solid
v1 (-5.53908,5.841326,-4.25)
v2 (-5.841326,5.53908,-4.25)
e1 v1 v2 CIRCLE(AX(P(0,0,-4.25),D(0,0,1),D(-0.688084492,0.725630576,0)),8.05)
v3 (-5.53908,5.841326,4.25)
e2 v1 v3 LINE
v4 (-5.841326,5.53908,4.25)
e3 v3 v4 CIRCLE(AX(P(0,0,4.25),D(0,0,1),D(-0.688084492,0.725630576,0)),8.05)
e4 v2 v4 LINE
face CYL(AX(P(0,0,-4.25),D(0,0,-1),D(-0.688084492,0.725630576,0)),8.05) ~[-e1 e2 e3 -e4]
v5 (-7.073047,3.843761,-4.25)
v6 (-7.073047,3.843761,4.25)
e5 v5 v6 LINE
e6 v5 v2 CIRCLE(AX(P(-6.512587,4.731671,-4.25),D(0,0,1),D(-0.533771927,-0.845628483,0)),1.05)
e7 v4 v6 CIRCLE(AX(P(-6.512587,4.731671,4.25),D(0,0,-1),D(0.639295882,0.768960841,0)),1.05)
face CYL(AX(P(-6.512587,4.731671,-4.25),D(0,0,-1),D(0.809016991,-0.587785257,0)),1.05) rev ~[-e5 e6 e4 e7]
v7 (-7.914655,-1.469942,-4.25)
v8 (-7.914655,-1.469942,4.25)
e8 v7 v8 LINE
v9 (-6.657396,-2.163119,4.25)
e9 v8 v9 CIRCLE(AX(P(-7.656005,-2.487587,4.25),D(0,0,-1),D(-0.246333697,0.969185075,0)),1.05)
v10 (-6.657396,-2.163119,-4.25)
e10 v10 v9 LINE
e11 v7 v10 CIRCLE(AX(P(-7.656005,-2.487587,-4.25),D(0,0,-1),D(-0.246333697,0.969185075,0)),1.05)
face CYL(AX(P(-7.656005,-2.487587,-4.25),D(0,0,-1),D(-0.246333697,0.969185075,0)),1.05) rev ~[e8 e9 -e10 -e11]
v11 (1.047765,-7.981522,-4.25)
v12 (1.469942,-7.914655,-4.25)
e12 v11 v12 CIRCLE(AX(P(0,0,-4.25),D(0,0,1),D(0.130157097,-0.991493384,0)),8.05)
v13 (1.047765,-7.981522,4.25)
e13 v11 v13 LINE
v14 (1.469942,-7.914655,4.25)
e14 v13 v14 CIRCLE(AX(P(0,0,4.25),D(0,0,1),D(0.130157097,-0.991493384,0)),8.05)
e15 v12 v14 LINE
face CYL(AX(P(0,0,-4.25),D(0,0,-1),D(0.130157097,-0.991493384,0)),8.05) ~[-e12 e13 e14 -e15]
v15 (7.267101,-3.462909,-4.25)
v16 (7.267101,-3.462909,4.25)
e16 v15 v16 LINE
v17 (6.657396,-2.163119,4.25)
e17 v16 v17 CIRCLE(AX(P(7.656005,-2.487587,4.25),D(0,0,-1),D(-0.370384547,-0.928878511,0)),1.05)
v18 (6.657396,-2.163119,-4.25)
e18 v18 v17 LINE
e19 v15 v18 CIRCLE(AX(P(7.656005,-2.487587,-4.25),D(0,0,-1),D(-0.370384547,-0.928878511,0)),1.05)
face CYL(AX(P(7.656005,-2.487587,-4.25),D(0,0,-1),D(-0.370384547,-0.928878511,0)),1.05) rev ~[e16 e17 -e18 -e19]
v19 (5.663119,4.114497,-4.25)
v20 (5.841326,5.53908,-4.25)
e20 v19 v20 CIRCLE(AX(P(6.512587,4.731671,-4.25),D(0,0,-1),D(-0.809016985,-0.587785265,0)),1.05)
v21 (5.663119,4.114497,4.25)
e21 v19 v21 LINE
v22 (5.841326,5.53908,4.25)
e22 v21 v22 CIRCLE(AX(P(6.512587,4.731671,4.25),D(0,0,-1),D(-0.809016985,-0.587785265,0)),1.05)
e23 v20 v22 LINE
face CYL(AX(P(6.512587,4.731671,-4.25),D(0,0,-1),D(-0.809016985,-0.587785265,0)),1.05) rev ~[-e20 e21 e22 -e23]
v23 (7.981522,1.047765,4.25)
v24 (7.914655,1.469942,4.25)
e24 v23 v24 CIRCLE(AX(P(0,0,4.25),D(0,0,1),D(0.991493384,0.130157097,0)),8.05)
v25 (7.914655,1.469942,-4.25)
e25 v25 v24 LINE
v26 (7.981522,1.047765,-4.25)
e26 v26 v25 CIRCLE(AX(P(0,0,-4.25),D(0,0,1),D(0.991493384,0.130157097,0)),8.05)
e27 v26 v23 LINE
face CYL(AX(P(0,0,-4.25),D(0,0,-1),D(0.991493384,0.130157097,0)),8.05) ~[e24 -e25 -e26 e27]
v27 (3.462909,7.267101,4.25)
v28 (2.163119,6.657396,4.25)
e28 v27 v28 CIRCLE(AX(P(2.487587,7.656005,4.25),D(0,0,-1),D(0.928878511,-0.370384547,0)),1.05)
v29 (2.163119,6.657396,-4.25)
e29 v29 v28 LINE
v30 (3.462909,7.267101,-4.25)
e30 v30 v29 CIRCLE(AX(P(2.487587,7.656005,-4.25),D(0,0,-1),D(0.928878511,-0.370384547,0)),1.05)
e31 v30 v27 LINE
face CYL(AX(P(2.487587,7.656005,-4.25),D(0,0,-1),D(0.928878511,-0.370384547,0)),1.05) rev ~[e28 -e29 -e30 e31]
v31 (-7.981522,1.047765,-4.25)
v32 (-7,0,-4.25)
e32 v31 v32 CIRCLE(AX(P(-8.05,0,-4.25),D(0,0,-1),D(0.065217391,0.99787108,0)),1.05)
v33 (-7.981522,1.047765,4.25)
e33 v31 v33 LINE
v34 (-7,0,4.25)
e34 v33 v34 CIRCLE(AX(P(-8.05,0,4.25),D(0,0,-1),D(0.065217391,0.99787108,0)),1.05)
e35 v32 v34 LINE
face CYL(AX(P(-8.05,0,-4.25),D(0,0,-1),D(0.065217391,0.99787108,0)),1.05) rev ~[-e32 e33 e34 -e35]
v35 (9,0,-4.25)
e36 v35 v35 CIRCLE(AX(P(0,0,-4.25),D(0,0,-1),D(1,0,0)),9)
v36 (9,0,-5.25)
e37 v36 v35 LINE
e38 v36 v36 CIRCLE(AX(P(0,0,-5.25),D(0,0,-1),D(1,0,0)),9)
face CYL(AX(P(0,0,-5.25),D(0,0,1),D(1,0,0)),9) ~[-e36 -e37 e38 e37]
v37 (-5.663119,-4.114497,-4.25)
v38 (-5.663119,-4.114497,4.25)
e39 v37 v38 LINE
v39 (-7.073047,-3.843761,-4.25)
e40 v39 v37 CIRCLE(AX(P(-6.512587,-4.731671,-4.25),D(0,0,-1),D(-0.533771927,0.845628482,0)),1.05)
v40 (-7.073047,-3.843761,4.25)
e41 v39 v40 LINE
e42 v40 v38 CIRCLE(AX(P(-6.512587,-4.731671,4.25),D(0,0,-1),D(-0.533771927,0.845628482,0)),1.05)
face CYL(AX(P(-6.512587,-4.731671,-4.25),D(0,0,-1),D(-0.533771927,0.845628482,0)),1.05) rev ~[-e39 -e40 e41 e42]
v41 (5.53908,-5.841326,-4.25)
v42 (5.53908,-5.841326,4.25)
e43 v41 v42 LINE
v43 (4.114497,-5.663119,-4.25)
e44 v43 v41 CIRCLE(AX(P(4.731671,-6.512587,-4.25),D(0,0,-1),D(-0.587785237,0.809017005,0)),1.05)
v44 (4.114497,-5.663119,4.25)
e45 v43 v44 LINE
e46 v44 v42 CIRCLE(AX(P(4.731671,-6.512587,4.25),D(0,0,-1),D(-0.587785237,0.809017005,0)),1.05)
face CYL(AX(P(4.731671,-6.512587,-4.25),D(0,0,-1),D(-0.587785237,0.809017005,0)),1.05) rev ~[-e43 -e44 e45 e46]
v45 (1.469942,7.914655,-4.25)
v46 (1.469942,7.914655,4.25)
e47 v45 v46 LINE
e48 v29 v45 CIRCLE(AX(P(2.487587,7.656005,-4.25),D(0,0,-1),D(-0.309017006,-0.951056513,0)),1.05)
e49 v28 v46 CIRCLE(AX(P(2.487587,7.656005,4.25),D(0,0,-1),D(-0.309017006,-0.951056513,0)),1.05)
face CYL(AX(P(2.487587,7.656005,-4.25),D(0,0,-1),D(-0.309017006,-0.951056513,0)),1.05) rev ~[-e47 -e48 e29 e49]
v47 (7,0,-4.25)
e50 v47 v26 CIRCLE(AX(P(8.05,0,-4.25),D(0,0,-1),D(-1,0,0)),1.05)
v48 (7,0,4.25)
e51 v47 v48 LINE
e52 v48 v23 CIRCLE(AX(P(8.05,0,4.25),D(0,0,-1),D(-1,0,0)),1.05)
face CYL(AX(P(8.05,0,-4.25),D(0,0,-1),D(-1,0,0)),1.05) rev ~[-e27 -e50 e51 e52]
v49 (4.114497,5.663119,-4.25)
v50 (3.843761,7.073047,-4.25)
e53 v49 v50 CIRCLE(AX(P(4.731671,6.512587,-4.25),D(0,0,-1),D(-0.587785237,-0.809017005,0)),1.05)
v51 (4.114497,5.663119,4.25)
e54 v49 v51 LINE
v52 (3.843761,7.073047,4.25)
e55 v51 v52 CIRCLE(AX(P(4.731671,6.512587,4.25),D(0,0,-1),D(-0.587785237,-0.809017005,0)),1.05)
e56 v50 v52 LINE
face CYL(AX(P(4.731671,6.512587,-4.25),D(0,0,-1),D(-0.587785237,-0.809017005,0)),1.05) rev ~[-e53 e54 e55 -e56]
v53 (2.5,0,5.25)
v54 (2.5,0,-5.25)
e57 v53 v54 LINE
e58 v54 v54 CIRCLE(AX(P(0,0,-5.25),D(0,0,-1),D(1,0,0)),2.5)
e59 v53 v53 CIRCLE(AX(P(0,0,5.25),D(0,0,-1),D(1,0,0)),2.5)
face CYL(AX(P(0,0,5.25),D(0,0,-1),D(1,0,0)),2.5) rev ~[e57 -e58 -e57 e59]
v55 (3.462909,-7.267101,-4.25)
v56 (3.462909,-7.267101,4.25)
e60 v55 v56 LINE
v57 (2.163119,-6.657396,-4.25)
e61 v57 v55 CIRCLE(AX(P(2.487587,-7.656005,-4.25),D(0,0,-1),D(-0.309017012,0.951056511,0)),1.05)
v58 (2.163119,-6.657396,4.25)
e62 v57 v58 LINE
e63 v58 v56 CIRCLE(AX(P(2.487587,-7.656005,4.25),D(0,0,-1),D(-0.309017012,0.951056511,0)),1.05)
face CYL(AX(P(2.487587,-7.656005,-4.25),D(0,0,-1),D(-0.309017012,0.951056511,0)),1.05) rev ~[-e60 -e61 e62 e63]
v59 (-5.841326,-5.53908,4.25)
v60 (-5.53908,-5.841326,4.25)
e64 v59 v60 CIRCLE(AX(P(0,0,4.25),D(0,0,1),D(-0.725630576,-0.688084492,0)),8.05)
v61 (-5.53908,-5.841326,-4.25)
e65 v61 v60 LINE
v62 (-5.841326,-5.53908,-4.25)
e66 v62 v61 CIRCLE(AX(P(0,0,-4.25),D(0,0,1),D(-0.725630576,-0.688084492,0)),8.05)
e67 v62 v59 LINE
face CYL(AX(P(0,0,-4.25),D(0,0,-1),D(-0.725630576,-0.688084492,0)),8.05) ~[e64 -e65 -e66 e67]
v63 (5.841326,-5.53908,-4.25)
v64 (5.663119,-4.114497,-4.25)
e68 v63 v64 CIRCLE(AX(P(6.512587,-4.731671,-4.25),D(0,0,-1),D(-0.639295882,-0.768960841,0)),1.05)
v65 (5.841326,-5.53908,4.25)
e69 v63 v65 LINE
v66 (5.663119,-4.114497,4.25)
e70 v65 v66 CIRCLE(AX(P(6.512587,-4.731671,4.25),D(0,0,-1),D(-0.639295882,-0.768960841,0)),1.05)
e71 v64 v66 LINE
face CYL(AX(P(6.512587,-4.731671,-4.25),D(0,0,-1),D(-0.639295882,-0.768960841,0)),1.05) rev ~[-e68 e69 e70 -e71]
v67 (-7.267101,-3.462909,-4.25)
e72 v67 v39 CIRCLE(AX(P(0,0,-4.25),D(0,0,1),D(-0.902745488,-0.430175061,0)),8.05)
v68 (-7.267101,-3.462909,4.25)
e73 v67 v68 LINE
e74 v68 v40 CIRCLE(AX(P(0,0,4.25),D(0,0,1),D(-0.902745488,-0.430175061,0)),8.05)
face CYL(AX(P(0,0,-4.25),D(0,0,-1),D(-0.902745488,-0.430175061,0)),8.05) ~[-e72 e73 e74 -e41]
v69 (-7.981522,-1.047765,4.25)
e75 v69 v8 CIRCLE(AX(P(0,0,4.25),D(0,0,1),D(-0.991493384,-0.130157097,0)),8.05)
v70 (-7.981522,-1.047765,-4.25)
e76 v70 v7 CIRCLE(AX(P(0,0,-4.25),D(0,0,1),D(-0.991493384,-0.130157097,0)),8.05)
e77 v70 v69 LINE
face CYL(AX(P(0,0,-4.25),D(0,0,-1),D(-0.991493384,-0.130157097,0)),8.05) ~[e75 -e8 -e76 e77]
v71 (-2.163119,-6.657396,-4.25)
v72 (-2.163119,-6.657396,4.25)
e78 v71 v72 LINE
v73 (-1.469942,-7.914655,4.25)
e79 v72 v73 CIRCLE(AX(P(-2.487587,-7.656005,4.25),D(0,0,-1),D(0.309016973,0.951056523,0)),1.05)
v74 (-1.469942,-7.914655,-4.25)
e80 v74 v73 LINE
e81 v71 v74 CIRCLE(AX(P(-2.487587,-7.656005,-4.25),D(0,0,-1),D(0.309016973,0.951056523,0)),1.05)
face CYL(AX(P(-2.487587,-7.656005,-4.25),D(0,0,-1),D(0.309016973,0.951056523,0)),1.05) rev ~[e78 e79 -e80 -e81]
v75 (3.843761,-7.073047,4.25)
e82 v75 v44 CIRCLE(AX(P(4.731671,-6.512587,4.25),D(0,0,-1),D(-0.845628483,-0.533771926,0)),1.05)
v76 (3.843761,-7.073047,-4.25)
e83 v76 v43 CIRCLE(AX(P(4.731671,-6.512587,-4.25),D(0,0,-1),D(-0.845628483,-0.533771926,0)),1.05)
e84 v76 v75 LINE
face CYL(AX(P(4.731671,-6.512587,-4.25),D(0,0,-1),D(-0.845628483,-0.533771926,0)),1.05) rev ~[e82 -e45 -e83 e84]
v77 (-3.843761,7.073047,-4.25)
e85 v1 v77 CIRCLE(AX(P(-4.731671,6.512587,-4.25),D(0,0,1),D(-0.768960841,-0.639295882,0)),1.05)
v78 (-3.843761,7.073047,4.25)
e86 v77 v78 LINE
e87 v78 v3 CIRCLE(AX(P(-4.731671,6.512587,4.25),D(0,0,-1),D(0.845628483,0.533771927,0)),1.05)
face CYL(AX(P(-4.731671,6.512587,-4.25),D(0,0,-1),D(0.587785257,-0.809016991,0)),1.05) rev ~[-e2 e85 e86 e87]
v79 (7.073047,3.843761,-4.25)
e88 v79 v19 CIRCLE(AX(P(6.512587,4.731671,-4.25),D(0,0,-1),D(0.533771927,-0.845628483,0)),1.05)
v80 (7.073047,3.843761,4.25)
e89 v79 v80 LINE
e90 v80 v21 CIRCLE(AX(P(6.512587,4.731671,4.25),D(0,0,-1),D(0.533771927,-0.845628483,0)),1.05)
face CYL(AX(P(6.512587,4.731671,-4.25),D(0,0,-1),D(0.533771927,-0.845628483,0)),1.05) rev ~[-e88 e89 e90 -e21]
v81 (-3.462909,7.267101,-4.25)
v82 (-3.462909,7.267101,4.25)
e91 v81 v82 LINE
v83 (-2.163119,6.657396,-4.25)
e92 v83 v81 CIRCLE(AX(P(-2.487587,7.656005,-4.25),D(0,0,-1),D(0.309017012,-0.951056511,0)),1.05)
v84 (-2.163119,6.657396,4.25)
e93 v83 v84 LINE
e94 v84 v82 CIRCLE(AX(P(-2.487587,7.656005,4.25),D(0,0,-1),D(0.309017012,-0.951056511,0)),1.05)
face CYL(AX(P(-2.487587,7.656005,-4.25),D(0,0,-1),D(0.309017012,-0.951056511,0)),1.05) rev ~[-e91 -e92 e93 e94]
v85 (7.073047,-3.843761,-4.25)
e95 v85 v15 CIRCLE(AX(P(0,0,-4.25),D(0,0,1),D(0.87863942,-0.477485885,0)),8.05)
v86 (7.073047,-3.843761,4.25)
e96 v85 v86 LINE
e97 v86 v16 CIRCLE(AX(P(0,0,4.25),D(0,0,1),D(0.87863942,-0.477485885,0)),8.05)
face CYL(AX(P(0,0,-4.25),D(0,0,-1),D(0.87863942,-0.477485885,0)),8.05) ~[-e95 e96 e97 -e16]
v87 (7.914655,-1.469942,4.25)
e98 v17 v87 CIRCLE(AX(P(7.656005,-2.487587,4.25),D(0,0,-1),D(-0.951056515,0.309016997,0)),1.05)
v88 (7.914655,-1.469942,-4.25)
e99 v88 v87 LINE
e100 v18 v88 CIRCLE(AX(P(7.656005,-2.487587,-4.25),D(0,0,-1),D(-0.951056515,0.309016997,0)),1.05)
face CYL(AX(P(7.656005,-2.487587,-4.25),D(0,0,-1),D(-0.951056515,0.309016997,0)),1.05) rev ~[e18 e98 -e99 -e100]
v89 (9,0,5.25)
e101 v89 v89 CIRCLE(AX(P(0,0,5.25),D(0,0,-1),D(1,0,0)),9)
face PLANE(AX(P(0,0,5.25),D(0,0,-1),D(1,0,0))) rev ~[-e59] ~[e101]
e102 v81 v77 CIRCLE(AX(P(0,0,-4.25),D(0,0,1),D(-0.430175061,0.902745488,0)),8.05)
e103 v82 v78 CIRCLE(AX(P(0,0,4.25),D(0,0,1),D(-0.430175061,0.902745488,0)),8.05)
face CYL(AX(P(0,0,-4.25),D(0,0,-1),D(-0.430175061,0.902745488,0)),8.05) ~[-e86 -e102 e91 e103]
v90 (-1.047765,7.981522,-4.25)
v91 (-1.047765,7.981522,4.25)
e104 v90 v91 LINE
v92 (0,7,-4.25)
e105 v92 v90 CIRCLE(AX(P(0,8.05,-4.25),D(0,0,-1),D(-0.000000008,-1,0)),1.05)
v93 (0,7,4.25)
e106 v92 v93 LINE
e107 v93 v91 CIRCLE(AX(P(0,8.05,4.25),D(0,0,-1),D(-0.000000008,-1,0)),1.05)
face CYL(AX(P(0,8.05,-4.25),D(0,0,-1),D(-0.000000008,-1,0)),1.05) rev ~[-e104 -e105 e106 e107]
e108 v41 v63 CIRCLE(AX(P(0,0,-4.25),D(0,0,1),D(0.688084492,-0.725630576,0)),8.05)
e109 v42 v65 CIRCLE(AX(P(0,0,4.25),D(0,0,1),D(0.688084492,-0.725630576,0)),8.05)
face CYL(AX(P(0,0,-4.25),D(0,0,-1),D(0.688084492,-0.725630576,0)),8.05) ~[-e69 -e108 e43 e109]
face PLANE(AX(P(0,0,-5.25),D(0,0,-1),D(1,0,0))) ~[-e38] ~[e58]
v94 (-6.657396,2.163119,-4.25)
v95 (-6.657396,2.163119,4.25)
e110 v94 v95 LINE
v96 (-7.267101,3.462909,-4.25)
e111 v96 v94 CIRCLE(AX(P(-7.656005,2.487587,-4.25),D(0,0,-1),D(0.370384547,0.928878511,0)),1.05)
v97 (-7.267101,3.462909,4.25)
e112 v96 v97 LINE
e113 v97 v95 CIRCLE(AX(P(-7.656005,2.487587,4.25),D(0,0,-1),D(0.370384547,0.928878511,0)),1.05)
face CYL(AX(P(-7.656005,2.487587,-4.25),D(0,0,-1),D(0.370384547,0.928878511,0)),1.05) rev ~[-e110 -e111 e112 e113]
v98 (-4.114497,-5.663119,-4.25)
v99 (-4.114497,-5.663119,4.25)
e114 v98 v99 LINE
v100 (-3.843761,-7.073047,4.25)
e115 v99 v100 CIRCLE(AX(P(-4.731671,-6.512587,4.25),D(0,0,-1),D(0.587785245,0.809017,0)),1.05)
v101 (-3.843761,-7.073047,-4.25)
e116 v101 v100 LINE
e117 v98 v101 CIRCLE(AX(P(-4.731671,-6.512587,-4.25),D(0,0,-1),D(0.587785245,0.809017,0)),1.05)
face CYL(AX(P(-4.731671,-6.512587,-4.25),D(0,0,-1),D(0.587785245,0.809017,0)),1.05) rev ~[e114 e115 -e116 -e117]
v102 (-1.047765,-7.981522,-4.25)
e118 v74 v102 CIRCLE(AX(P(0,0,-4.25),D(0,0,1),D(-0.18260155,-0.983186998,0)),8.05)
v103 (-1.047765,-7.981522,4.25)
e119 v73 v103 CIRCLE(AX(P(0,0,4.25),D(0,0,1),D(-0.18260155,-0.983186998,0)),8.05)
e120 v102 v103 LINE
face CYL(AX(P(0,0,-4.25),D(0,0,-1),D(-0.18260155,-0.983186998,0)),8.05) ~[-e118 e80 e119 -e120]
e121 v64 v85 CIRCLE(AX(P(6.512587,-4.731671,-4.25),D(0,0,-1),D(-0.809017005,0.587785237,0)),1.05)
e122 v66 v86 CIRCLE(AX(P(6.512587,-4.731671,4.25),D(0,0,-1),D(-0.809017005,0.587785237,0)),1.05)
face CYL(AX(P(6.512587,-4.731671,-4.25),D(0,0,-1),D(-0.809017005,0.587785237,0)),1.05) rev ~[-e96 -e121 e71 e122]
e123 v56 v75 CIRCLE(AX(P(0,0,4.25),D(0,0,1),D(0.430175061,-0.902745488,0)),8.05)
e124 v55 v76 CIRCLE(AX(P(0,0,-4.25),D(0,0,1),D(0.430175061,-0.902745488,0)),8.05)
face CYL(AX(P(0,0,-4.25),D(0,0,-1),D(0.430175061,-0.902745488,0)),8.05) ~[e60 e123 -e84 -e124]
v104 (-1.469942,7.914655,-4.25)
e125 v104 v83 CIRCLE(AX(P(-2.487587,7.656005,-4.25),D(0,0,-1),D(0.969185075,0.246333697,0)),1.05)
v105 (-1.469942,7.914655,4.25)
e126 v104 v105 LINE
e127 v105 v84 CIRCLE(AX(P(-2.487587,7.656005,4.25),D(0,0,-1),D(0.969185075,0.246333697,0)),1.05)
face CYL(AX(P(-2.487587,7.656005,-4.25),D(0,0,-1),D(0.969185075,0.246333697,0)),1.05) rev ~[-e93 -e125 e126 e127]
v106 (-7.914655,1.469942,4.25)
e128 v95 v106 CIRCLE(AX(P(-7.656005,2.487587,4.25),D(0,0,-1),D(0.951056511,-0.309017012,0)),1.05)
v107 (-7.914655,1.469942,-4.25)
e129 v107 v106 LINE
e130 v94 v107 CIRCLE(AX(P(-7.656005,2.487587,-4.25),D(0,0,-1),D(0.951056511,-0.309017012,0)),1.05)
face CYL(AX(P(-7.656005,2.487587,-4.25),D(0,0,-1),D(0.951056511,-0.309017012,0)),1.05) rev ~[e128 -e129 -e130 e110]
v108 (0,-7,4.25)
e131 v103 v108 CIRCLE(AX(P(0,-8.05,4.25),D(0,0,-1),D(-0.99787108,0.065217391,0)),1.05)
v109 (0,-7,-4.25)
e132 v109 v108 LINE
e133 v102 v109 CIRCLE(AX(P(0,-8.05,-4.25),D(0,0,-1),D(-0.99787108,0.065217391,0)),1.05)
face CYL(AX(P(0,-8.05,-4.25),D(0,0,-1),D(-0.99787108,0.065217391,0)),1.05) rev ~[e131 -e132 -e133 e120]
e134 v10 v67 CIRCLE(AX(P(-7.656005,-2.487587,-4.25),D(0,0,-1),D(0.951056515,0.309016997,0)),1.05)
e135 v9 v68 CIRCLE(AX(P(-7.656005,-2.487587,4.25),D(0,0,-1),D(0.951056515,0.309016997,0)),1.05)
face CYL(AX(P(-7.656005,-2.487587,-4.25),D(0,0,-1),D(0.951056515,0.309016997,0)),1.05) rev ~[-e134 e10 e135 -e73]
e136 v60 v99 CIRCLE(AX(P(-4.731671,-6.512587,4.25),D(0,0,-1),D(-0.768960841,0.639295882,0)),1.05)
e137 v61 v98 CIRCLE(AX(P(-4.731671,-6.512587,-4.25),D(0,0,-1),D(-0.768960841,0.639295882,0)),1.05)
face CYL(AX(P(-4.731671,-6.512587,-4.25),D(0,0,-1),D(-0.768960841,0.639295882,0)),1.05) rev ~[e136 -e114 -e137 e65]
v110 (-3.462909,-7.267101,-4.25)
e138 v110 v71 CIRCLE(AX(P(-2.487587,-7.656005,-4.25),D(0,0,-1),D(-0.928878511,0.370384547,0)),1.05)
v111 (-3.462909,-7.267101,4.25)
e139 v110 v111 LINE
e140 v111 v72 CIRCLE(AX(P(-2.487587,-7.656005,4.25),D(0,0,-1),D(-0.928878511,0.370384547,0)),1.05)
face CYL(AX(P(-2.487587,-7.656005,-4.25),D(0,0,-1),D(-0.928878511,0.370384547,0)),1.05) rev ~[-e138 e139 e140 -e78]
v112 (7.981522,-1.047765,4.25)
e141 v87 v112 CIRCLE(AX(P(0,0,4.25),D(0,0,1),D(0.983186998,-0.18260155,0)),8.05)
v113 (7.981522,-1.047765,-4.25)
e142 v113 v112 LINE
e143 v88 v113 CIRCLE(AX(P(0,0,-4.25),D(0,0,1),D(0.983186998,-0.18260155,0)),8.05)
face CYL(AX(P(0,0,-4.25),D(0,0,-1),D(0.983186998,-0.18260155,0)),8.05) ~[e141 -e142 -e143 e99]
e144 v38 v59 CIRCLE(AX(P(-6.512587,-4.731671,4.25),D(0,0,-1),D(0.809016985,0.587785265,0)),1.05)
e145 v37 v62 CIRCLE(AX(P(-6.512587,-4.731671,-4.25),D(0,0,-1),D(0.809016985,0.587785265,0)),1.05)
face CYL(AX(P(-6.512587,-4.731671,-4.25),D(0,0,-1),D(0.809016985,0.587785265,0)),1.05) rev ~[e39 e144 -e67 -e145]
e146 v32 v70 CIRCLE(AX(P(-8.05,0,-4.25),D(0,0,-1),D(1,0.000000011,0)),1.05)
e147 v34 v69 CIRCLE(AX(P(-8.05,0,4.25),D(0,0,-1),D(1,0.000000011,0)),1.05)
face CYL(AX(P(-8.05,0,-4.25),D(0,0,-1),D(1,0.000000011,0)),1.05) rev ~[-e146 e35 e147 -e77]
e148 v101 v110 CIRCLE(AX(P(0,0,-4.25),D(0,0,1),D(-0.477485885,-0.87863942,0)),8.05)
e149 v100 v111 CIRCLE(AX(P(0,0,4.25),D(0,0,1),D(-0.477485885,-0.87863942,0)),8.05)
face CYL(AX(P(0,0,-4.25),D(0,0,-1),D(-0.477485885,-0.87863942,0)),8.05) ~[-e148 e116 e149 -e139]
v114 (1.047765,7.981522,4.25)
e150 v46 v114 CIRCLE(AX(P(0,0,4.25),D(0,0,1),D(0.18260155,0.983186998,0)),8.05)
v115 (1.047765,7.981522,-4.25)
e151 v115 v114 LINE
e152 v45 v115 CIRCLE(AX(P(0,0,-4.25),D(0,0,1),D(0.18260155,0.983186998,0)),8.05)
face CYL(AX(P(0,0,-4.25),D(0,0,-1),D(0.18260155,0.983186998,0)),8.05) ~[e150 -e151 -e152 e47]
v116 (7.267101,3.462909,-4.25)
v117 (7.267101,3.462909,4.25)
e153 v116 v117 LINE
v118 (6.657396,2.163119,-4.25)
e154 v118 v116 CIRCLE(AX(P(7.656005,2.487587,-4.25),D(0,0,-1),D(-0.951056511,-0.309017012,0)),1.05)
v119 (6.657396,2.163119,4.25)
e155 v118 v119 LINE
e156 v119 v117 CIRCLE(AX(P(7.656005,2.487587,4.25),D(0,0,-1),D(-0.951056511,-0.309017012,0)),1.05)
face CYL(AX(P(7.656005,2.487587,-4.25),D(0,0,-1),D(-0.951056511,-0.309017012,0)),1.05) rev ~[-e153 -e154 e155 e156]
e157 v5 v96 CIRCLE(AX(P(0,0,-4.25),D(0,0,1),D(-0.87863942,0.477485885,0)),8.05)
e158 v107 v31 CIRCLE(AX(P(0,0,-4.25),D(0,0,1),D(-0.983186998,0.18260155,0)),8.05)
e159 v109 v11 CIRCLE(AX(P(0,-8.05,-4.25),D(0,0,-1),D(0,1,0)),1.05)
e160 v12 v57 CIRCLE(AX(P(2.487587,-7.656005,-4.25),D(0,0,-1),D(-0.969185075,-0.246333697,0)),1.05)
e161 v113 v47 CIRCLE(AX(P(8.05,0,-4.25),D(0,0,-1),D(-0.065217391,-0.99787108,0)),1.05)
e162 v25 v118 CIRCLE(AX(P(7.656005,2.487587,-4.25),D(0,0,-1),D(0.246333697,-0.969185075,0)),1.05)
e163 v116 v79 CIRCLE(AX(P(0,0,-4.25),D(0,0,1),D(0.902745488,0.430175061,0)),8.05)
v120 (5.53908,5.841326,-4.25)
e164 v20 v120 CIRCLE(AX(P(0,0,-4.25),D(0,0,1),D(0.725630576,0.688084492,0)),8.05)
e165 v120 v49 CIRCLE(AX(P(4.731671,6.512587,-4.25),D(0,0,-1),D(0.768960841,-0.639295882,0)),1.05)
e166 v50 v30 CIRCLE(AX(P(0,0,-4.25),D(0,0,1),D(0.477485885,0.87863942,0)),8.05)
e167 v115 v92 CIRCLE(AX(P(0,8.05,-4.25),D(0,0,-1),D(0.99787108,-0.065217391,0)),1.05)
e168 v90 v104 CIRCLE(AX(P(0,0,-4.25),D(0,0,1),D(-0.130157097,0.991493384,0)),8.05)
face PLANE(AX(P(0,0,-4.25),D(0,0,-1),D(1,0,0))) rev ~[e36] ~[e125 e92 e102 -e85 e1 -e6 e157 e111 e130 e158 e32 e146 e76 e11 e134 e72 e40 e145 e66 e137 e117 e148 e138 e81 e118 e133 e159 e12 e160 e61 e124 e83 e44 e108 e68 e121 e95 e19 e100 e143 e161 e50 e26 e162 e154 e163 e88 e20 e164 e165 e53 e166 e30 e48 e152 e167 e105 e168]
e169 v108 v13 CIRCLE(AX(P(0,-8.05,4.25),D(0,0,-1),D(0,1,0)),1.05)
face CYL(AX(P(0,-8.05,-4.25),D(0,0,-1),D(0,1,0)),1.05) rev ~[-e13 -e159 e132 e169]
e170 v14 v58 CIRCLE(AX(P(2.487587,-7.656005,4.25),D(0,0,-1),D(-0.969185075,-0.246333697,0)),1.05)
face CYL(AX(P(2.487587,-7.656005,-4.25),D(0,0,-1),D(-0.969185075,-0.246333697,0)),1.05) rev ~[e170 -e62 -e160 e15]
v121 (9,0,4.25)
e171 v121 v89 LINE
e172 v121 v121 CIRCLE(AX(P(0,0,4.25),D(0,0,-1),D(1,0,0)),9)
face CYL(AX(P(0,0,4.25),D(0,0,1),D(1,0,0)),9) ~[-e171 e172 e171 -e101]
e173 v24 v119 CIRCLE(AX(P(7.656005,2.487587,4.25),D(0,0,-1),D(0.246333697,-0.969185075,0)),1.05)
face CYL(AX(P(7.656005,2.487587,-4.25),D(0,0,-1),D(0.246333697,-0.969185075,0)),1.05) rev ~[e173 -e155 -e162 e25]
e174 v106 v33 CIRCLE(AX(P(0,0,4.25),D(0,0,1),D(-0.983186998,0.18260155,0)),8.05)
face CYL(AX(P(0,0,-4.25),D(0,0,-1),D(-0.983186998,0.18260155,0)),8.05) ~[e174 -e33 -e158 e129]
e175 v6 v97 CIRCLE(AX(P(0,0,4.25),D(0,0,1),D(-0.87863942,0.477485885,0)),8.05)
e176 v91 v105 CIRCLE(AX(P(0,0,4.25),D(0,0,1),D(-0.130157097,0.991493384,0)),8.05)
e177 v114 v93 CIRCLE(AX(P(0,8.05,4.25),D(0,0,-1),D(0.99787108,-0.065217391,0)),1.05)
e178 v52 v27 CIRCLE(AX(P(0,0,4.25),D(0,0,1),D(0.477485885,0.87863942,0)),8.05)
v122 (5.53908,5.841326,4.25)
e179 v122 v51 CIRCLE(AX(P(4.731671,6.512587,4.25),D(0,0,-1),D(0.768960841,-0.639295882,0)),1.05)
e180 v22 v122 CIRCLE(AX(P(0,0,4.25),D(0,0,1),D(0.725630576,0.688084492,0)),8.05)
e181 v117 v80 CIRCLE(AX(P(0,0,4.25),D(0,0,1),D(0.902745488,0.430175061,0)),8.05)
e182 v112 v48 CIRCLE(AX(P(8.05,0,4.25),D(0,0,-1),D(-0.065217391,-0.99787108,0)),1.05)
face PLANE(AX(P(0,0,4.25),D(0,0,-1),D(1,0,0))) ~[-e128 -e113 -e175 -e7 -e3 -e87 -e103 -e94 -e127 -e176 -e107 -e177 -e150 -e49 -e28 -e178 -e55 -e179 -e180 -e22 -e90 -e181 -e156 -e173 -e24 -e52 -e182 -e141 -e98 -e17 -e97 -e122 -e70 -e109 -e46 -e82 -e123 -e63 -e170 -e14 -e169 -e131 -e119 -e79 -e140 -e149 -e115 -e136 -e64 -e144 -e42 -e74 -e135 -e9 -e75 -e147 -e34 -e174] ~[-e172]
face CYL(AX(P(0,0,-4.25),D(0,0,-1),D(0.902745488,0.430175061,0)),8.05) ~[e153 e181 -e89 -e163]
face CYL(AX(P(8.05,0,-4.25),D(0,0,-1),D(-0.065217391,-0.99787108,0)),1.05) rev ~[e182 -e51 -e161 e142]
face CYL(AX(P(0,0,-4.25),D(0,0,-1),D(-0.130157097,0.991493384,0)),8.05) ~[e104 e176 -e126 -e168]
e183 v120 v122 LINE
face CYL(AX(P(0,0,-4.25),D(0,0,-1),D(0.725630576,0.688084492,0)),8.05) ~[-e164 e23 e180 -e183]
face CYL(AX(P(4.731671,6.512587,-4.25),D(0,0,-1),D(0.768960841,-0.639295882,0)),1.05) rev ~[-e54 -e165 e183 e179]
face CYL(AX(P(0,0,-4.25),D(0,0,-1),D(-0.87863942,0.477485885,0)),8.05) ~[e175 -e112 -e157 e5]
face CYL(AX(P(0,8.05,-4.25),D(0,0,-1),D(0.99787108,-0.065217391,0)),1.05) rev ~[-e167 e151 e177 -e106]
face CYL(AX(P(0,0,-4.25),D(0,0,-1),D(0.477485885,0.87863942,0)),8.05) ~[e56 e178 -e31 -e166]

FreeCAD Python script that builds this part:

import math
import FreeCAD as App
import Part
import Sketcher
from FreeCAD import Vector
Q = App.Units.Quantity

doc = App.newDocument("Part")
body = doc.addObject("PartDesign::Body", "Body")

sketch1 = body.newObject("Sketcher::SketchObject", "Sketch")
sketch1.AttachmentSupport = (doc.getObject("XZ_Plane"), [""])
sketch1.MapMode = "FlatFace"
sketch1.addGeometry([
    Part.LineSegment(Vector(9, 5.25, 0), Vector(2.5, 5.25, 0)),
    Part.LineSegment(Vector(2.5, 5.25, 0), Vector(2.5, -5.25, 0)),
    Part.LineSegment(Vector(2.5, -5.25, 0), Vector(9, -5.25, 0)),
    Part.LineSegment(Vector(9, -5.25, 0), Vector(9, -4.25, 0)),
    Part.LineSegment(Vector(9, -4.25, 0), Vector(7, -4.25, 0)),
    Part.LineSegment(Vector(7, -4.25, 0), Vector(7, 4.25, 0)),
    Part.LineSegment(Vector(7, 4.25, 0), Vector(9, 4.25, 0)),
    Part.LineSegment(Vector(9, 4.25, 0), Vector(9, 5.25, 0)),
], False)
sketch1.addConstraint([
    Sketcher.Constraint("Coincident", 0, 2, 1, 1),
    Sketcher.Constraint("Coincident", 1, 2, 2, 1),
    Sketcher.Constraint("Coincident", 2, 2, 3, 1),
    Sketcher.Constraint("Coincident", 3, 2, 4, 1),
    Sketcher.Constraint("Coincident", 4, 2, 5, 1),
    Sketcher.Constraint("Coincident", 5, 2, 6, 1),
    Sketcher.Constraint("Coincident", 6, 2, 7, 1),
    Sketcher.Constraint("Coincident", 7, 2, 0, 1),
    Sketcher.Constraint("Horizontal", 0),
    Sketcher.Constraint("Vertical", 1),
    Sketcher.Constraint("Horizontal", 2),
    Sketcher.Constraint("Vertical", 3),
    Sketcher.Constraint("Horizontal", 4),
    Sketcher.Constraint("Vertical", 5),
    Sketcher.Constraint("Horizontal", 6),
    Sketcher.Constraint("Vertical", 7),
    Sketcher.Constraint("Symmetric", 3, 2, 6, 2, -1),
    Sketcher.Constraint("Equal", 3, 7),
    Sketcher.Constraint("DistanceX", 4, 2, 4, 1, Q("2 mm")),
    Sketcher.Constraint("DistanceY", 3, 1, 3, 2, Q("1 mm")),
    Sketcher.Constraint("DistanceX", 0, 2, 0, 1, Q("6.5 mm")),
    Sketcher.Constraint("DistanceY", 1, 2, 1, 1, Q("10.5 mm")),
    Sketcher.Constraint("DistanceX", -1, 1, 2, 2, Q("9 mm")),
])
revolution = body.newObject("PartDesign::Revolution", "Revolution")
revolution.Profile = sketch1
revolution.ReferenceAxis = (sketch1, ["V_Axis"])
revolution.Angle = 360

sketch2 = body.newObject("Sketcher::SketchObject", "Sketch001")
sketch2.AttachmentSupport = (doc.getObject("XY_Plane"), [""])
sketch2.MapMode = "FlatFace"
sketch2.AttachmentOffset = App.Placement(Vector(0, 0, -4.25), App.Rotation())
sketch2.addGeometry([
    Part.ArcOfCircle(Part.Circle(Vector(7.656005, -2.487587, 0), Vector(0, 0, 1), 1.05), math.radians(162), math.radians(248.260665)),
    Part.ArcOfCircle(Part.Circle(Vector(0, 0, 0), Vector(0, 0, 1), 7), math.radians(-36), math.radians(-18)),
    Part.ArcOfCircle(Part.Circle(Vector(6.512587, -4.731671, 0), Vector(0, 0, 1), 1.05), math.radians(57.739335), math.radians(144.000001)),
    Part.ArcOfCircle(Part.Circle(Vector(0, 0, 0), Vector(0, 0, 1), 8.05), math.radians(-28.52133), math.radians(-25.47867)),
    Part.ArcOfCircle(Part.Circle(Vector(8.05, 0, 0), Vector(0, 0, 1), 1.05), math.radians(180), math.radians(266.260665)),
    Part.ArcOfCircle(Part.Circle(Vector(0, 0, 0), Vector(0, 0, 1), 7), math.radians(-18), math.radians(0)),
    Part.ArcOfCircle(Part.Circle(Vector(7.656005, -2.487587, 0), Vector(0, 0, 1), 1.05), math.radians(75.739335), math.radians(162)),
    Part.ArcOfCircle(Part.Circle(Vector(0, 0, 0), Vector(0, 0, 1), 8.05), math.radians(-10.52133), math.radians(-7.47867)),
    Part.ArcOfCircle(Part.Circle(Vector(7.656005, 2.487587, 0), Vector(0, 0, 1), 1.05), math.radians(-161.999999), math.radians(-75.739335)),
    Part.ArcOfCircle(Part.Circle(Vector(0, 0, 0), Vector(0, 0, 1), 7), math.radians(0), math.radians(18)),
    Part.ArcOfCircle(Part.Circle(Vector(8.05, 0, 0), Vector(0, 0, 1), 1.05), math.radians(93.739335), math.radians(180)),
    Part.ArcOfCircle(Part.Circle(Vector(0, 0, 0), Vector(0, 0, 1), 8.05), math.radians(7.47867), math.radians(10.52133)),
    Part.ArcOfCircle(Part.Circle(Vector(6.512587, -4.731671, 0), Vector(0, 0, 1), 1.05), math.radians(144.000001), math.radians(230.260665)),
    Part.ArcOfCircle(Part.Circle(Vector(0, 0, 0), Vector(0, 0, 1), 7), math.radians(-54), math.radians(-36)),
    Part.ArcOfCircle(Part.Circle(Vector(4.731671, -6.512587, 0), Vector(0, 0, 1), 1.05), math.radians(39.739335), math.radians(125.999999)),
    Part.ArcOfCircle(Part.Circle(Vector(0, 0, 0), Vector(0, 0, 1), 8.05), math.radians(-46.52133), math.radians(-43.47867)),
    Part.ArcOfCircle(Part.Circle(Vector(4.731671, -6.512587, 0), Vector(0, 0, 1), 1.05), math.radians(125.999999), math.radians(212.260665)),
    Part.ArcOfCircle(Part.Circle(Vector(0, 0, 0), Vector(0, 0, 1), 7), math.radians(-72), math.radians(-54)),
    Part.ArcOfCircle(Part.Circle(Vector(2.487587, -7.656005, 0), Vector(0, 0, 1), 1.05), math.radians(21.739335), math.radians(108.000001)),
    Part.ArcOfCircle(Part.Circle(Vector(0, 0, 0), Vector(0, 0, 1), 8.05), math.radians(-64.52133), math.radians(-61.47867)),
    Part.ArcOfCircle(Part.Circle(Vector(2.487587, -7.656005, 0), Vector(0, 0, 1), 1.05), math.radians(108.000001), math.radians(194.260665)),
    Part.ArcOfCircle(Part.Circle(Vector(0, 0, 0), Vector(0, 0, 1), 7), math.radians(-90), math.radians(-72)),
    Part.ArcOfCircle(Part.Circle(Vector(0, -8.05, 0), Vector(0, 0, 1), 1.05), math.radians(3.739335), math.radians(90)),
    Part.ArcOfCircle(Part.Circle(Vector(0, 0, 0), Vector(0, 0, 1), 8.05), math.radians(-82.52133), math.radians(-79.47867)),
    Part.ArcOfCircle(Part.Circle(Vector(0, 0, 0), Vector(0, 0, 1), 7), math.radians(-108), math.radians(-90)),
    Part.ArcOfCircle(Part.Circle(Vector(-2.487587, -7.656005, 0), Vector(0, 0, 1), 1.05), math.radians(-14.260665), math.radians(72.000001)),
    Part.ArcOfCircle(Part.Circle(Vector(0, 0, 0), Vector(0, 0, 1), 8.05), math.radians(-100.52133), math.radians(-97.47867)),
    Part.ArcOfCircle(Part.Circle(Vector(0, -8.05, 0), Vector(0, 0, 1), 1.05), math.radians(90), math.radians(176.260665)),
    Part.ArcOfCircle(Part.Circle(Vector(0, 0, 0), Vector(0, 0, 1), 7), math.radians(-126), math.radians(-108)),
    Part.ArcOfCircle(Part.Circle(Vector(-4.731671, -6.512587, 0), Vector(0, 0, 1), 1.05), math.radians(-32.260665), math.radians(54.000001)),
    Part.ArcOfCircle(Part.Circle(Vector(0, 0, 0), Vector(0, 0, 1), 8.05), math.radians(-118.52133), math.radians(-115.47867)),
    Part.ArcOfCircle(Part.Circle(Vector(-2.487587, -7.656005, 0), Vector(0, 0, 1), 1.05), math.radians(72.000001), math.radians(158.260665)),
    Part.ArcOfCircle(Part.Circle(Vector(0, 0, 0), Vector(0, 0, 1), 7), math.radians(-144), math.radians(-126)),
    Part.ArcOfCircle(Part.Circle(Vector(-6.512587, -4.731671, 0), Vector(0, 0, 1), 1.05), math.radians(-50.260665), math.radians(36.000001)),
    Part.ArcOfCircle(Part.Circle(Vector(0, 0, 0), Vector(0, 0, 1), 8.05), math.radians(-136.52133), math.radians(-133.47867)),
    Part.ArcOfCircle(Part.Circle(Vector(-4.731671, -6.512587, 0), Vector(0, 0, 1), 1.05), math.radians(54.000001), math.radians(140.260665)),
    Part.ArcOfCircle(Part.Circle(Vector(0, 0, 0), Vector(0, 0, 1), 7), math.radians(-162), math.radians(-144)),
    Part.ArcOfCircle(Part.Circle(Vector(-7.656005, -2.487587, 0), Vector(0, 0, 1), 1.05), math.radians(-68.260665), math.radians(18)),
    Part.ArcOfCircle(Part.Circle(Vector(0, 0, 0), Vector(0, 0, 1), 8.05), math.radians(-154.52133), math.radians(-151.47867)),
    Part.ArcOfCircle(Part.Circle(Vector(-6.512587, -4.731671, 0), Vector(0, 0, 1), 1.05), math.radians(36.000001), math.radians(122.260665)),
    Part.ArcOfCircle(Part.Circle(Vector(0, 0, 0), Vector(0, 0, 1), 7), math.radians(180), math.radians(198)),
    Part.ArcOfCircle(Part.Circle(Vector(-8.05, 0, 0), Vector(0, 0, 1), 1.05), math.radians(-86.260665), math.radians(0.000001)),
    Part.ArcOfCircle(Part.Circle(Vector(0, 0, 0), Vector(0, 0, 1), 8.05), math.radians(-172.52133), math.radians(-169.47867)),
    Part.ArcOfCircle(Part.Circle(Vector(-7.656005, -2.487587, 0), Vector(0, 0, 1), 1.05), math.radians(18), math.radians(104.260665)),
    Part.ArcOfCircle(Part.Circle(Vector(0, 0, 0), Vector(0, 0, 1), 7), math.radians(162), math.radians(180)),
    Part.ArcOfCircle(Part.Circle(Vector(-7.656005, 2.487587, 0), Vector(0, 0, 1), 1.05), math.radians(-104.260665), math.radians(-18.000001)),
    Part.ArcOfCircle(Part.Circle(Vector(0, 0, 0), Vector(0, 0, 1), 8.05), math.radians(169.47867), math.radians(172.52133)),
    Part.ArcOfCircle(Part.Circle(Vector(-8.05, 0, 0), Vector(0, 0, 1), 1.05), math.radians(0.000001), math.radians(86.260665)),
    Part.ArcOfCircle(Part.Circle(Vector(0, 0, 0), Vector(0, 0, 1), 7), math.radians(144), math.radians(162)),
    Part.ArcOfCircle(Part.Circle(Vector(-6.512587, 4.731671, 0), Vector(0, 0, 1), 1.05), math.radians(-122.260665), math.radians(-36)),
    Part.ArcOfCircle(Part.Circle(Vector(0, 0, 0), Vector(0, 0, 1), 8.05), math.radians(151.47867), math.radians(154.52133)),
    Part.ArcOfCircle(Part.Circle(Vector(-7.656005, 2.487587, 0), Vector(0, 0, 1), 1.05), math.radians(-18.000001), math.radians(68.260665)),
    Part.ArcOfCircle(Part.Circle(Vector(0, 0, 0), Vector(0, 0, 1), 7), math.radians(126), math.radians(144)),
    Part.ArcOfCircle(Part.Circle(Vector(-4.731671, 6.512587, 0), Vector(0, 0, 1), 1.05), math.radians(-140.260665), math.radians(-54)),
    Part.ArcOfCircle(Part.Circle(Vector(0, 0, 0), Vector(0, 0, 1), 8.05), math.radians(133.47867), math.radians(136.52133)),
    Part.ArcOfCircle(Part.Circle(Vector(-6.512587, 4.731671, 0), Vector(0, 0, 1), 1.05), math.radians(-36), math.radians(50.260665)),
    Part.ArcOfCircle(Part.Circle(Vector(0, 0, 0), Vector(0, 0, 1), 7), math.radians(108), math.radians(126)),
    Part.ArcOfCircle(Part.Circle(Vector(-2.487587, 7.656005, 0), Vector(0, 0, 1), 1.05), math.radians(-158.260665), math.radians(-71.999999)),
    Part.ArcOfCircle(Part.Circle(Vector(0, 0, 0), Vector(0, 0, 1), 8.05), math.radians(115.47867), math.radians(118.52133)),
    Part.ArcOfCircle(Part.Circle(Vector(-4.731671, 6.512587, 0), Vector(0, 0, 1), 1.05), math.radians(-54), math.radians(32.260665)),
    Part.ArcOfCircle(Part.Circle(Vector(0, 8.05, 0), Vector(0, 0, 1), 1.05), math.radians(-176.260665), math.radians(-90)),
    Part.ArcOfCircle(Part.Circle(Vector(0, 0, 0), Vector(0, 0, 1), 8.05), math.radians(97.47867), math.radians(100.52133)),
    Part.ArcOfCircle(Part.Circle(Vector(-2.487587, 7.656005, 0), Vector(0, 0, 1), 1.05), math.radians(-71.999999), math.radians(14.260665)),
    Part.ArcOfCircle(Part.Circle(Vector(0, 0, 0), Vector(0, 0, 1), 7), math.radians(90), math.radians(108)),
    Part.ArcOfCircle(Part.Circle(Vector(0, 8.05, 0), Vector(0, 0, 1), 1.05), math.radians(-90), math.radians(-3.739335)),
    Part.ArcOfCircle(Part.Circle(Vector(0, 0, 0), Vector(0, 0, 1), 7), math.radians(72), math.radians(90)),
    Part.ArcOfCircle(Part.Circle(Vector(2.487587, 7.656005, 0), Vector(0, 0, 1), 1.05), math.radians(165.739335), math.radians(251.999999)),
    Part.ArcOfCircle(Part.Circle(Vector(0, 0, 0), Vector(0, 0, 1), 8.05), math.radians(79.47867), math.radians(82.52133)),
    Part.ArcOfCircle(Part.Circle(Vector(2.487587, 7.656005, 0), Vector(0, 0, 1), 1.05), math.radians(-108.000001), math.radians(-21.739335)),
    Part.ArcOfCircle(Part.Circle(Vector(0, 0, 0), Vector(0, 0, 1), 7), math.radians(54), math.radians(72)),
    Part.ArcOfCircle(Part.Circle(Vector(4.731671, 6.512587, 0), Vector(0, 0, 1), 1.05), math.radians(147.739335), math.radians(234.000001)),
    Part.ArcOfCircle(Part.Circle(Vector(0, 0, 0), Vector(0, 0, 1), 8.05), math.radians(61.47867), math.radians(64.52133)),
    Part.ArcOfCircle(Part.Circle(Vector(4.731671, 6.512587, 0), Vector(0, 0, 1), 1.05), math.radians(-125.999999), math.radians(-39.739335)),
    Part.ArcOfCircle(Part.Circle(Vector(0, 0, 0), Vector(0, 0, 1), 7), math.radians(36), math.radians(54)),
    Part.ArcOfCircle(Part.Circle(Vector(6.512587, 4.731671, 0), Vector(0, 0, 1), 1.05), math.radians(129.739335), math.radians(216.000001)),
    Part.ArcOfCircle(Part.Circle(Vector(0, 0, 0), Vector(0, 0, 1), 8.05), math.radians(43.47867), math.radians(46.52133)),
    Part.ArcOfCircle(Part.Circle(Vector(6.512587, 4.731671, 0), Vector(0, 0, 1), 1.05), math.radians(-143.999999), math.radians(-57.739335)),
    Part.ArcOfCircle(Part.Circle(Vector(0, 0, 0), Vector(0, 0, 1), 7), math.radians(18), math.radians(36)),
    Part.ArcOfCircle(Part.Circle(Vector(7.656005, 2.487587, 0), Vector(0, 0, 1), 1.05), math.radians(111.739335), math.radians(198.000001)),
    Part.ArcOfCircle(Part.Circle(Vector(0, 0, 0), Vector(0, 0, 1), 8.05), math.radians(25.47867), math.radians(28.52133)),
], False)
sketch2.addConstraint([
    Sketcher.Constraint("Tangent", 0, 1, 1, 2),
    Sketcher.Constraint("Tangent", 1, 1, 2, 2),
    Sketcher.Constraint("Coincident", 2, 1, 3, 1),
    Sketcher.Constraint("Coincident", 3, 2, 0, 2),
    Sketcher.Constraint("Tangent", 4, 1, 5, 2),
    Sketcher.Constraint("Tangent", 5, 1, 6, 2),
    Sketcher.Constraint("Coincident", 6, 1, 7, 1),
    Sketcher.Constraint("Coincident", 7, 2, 4, 2),
    Sketcher.Constraint("Tangent", 8, 1, 9, 2),
    Sketcher.Constraint("Tangent", 9, 1, 10, 2),
    Sketcher.Constraint("Coincident", 10, 1, 11, 1),
    Sketcher.Constraint("Coincident", 11, 2, 8, 2),
    Sketcher.Constraint("Tangent", 12, 1, 13, 2),
    Sketcher.Constraint("Tangent", 13, 1, 14, 2),
    Sketcher.Constraint("Coincident", 14, 1, 15, 1),
    Sketcher.Constraint("Coincident", 15, 2, 12, 2),
    Sketcher.Constraint("Tangent", 16, 1, 17, 2),
    Sketcher.Constraint("Tangent", 17, 1, 18, 2),
    Sketcher.Constraint("Coincident", 18, 1, 19, 1),
    Sketcher.Constraint("Coincident", 19, 2, 16, 2),
    Sketcher.Constraint("Tangent", 20, 1, 21, 2),
    Sketcher.Constraint("Tangent", 21, 1, 22, 2),
    Sketcher.Constraint("Coincident", 22, 1, 23, 1),
    Sketcher.Constraint("Coincident", 23, 2, 20, 2),
    Sketcher.Constraint("Tangent", 24, 1, 25, 2),
    Sketcher.Constraint("Coincident", 25, 1, 26, 1),
    Sketcher.Constraint("Coincident", 26, 2, 27, 2),
    Sketcher.Constraint("Tangent", 27, 1, 24, 2),
    Sketcher.Constraint("Tangent", 28, 1, 29, 2),
    Sketcher.Constraint("Coincident", 29, 1, 30, 1),
    Sketcher.Constraint("Coincident", 30, 2, 31, 2),
    Sketcher.Constraint("Tangent", 31, 1, 28, 2),
    Sketcher.Constraint("Tangent", 32, 1, 33, 2),
    Sketcher.Constraint("Coincident", 33, 1, 34, 1),
    Sketcher.Constraint("Coincident", 34, 2, 35, 2),
    Sketcher.Constraint("Tangent", 35, 1, 32, 2),
    Sketcher.Constraint("Tangent", 36, 1, 37, 2),
    Sketcher.Constraint("Coincident", 37, 1, 38, 1),
    Sketcher.Constraint("Coincident", 38, 2, 39, 2),
    Sketcher.Constraint("Tangent", 39, 1, 36, 2),
    Sketcher.Constraint("Tangent", 40, 1, 41, 2),
    Sketcher.Constraint("Coincident", 41, 1, 42, 1),
    Sketcher.Constraint("Coincident", 42, 2, 43, 2),
    Sketcher.Constraint("Tangent", 43, 1, 40, 2),
    Sketcher.Constraint("Tangent", 44, 1, 45, 2),
    Sketcher.Constraint("Coincident", 45, 1, 46, 1),
    Sketcher.Constraint("Coincident", 46, 2, 47, 2),
    Sketcher.Constraint("Tangent", 47, 1, 44, 2),
    Sketcher.Constraint("Tangent", 48, 1, 49, 2),
    Sketcher.Constraint("Coincident", 49, 1, 50, 1),
    Sketcher.Constraint("Coincident", 50, 2, 51, 2),
    Sketcher.Constraint("Tangent", 51, 1, 48, 2),
    Sketcher.Constraint("Tangent", 52, 1, 53, 2),
    Sketcher.Constraint("Coincident", 53, 1, 54, 1),
    Sketcher.Constraint("Coincident", 54, 2, 55, 2),
    Sketcher.Constraint("Tangent", 55, 1, 52, 2),
    Sketcher.Constraint("Tangent", 56, 1, 57, 2),
    Sketcher.Constraint("Coincident", 57, 1, 58, 1),
    Sketcher.Constraint("Coincident", 58, 2, 59, 2),
    Sketcher.Constraint("Tangent", 59, 1, 56, 2),
    Sketcher.Constraint("Coincident", 60, 1, 61, 1),
    Sketcher.Constraint("Coincident", 61, 2, 62, 2),
    Sketcher.Constraint("Tangent", 62, 1, 63, 2),
    Sketcher.Constraint("Tangent", 63, 1, 60, 2),
    Sketcher.Constraint("Tangent", 64, 1, 65, 2),
    Sketcher.Constraint("Tangent", 65, 1, 66, 2),
    Sketcher.Constraint("Coincident", 66, 1, 67, 1),
    Sketcher.Constraint("Coincident", 67, 2, 64, 2),
    Sketcher.Constraint("Tangent", 68, 1, 69, 2),
    Sketcher.Constraint("Tangent", 69, 1, 70, 2),
    Sketcher.Constraint("Coincident", 70, 1, 71, 1),
    Sketcher.Constraint("Coincident", 71, 2, 68, 2),
    Sketcher.Constraint("Tangent", 72, 1, 73, 2),
    Sketcher.Constraint("Tangent", 73, 1, 74, 2),
    Sketcher.Constraint("Coincident", 74, 1, 75, 1),
    Sketcher.Constraint("Coincident", 75, 2, 72, 2),
    Sketcher.Constraint("Tangent", 76, 1, 77, 2),
    Sketcher.Constraint("Tangent", 77, 1, 78, 2),
    Sketcher.Constraint("Coincident", 78, 1, 79, 1),
    Sketcher.Constraint("Coincident", 79, 2, 76, 2),
    Sketcher.Constraint("Coincident", 1, 3, -1, 1),
    Sketcher.Constraint("Coincident", 3, 3, -1, 1),
    Sketcher.Constraint("Coincident", 5, 3, -1, 1),
    Sketcher.Constraint("Coincident", 7, 3, -1, 1),
    Sketcher.Constraint("Coincident", 9, 3, -1, 1),
    Sketcher.Constraint("Coincident", 11, 3, -1, 1),
    Sketcher.Constraint("Coincident", 13, 3, -1, 1),
    Sketcher.Constraint("Coincident", 15, 3, -1, 1),
    Sketcher.Constraint("Coincident", 17, 3, -1, 1),
    Sketcher.Constraint("Coincident", 19, 3, -1, 1),
    Sketcher.Constraint("Coincident", 21, 3, -1, 1),
    Sketcher.Constraint("Coincident", 23, 3, -1, 1),
    Sketcher.Constraint("Coincident", 24, 3, -1, 1),
    Sketcher.Constraint("Coincident", 26, 3, -1, 1),
    Sketcher.Constraint("Coincident", 28, 3, -1, 1),
    Sketcher.Constraint("Coincident", 30, 3, -1, 1),
    Sketcher.Constraint("Coincident", 32, 3, -1, 1),
    Sketcher.Constraint("Coincident", 34, 3, -1, 1),
    Sketcher.Constraint("Coincident", 36, 3, -1, 1),
    Sketcher.Constraint("Coincident", 38, 3, -1, 1),
    Sketcher.Constraint("Coincident", 40, 3, -1, 1),
    Sketcher.Constraint("Coincident", 42, 3, -1, 1),
    Sketcher.Constraint("Coincident", 44, 3, -1, 1),
    Sketcher.Constraint("Coincident", 46, 3, -1, 1),
    Sketcher.Constraint("Coincident", 48, 3, -1, 1),
    Sketcher.Constraint("Coincident", 50, 3, -1, 1),
    Sketcher.Constraint("Coincident", 52, 3, -1, 1),
    Sketcher.Constraint("Coincident", 54, 3, -1, 1),
    Sketcher.Constraint("Coincident", 56, 3, -1, 1),
    Sketcher.Constraint("Coincident", 58, 3, -1, 1),
    Sketcher.Constraint("Coincident", 61, 3, -1, 1),
    Sketcher.Constraint("Coincident", 63, 3, -1, 1),
    Sketcher.Constraint("Coincident", 65, 3, -1, 1),
    Sketcher.Constraint("Coincident", 67, 3, -1, 1),
    Sketcher.Constraint("Coincident", 69, 3, -1, 1),
    Sketcher.Constraint("Coincident", 71, 3, -1, 1),
    Sketcher.Constraint("Coincident", 73, 3, -1, 1),
    Sketcher.Constraint("Coincident", 75, 3, -1, 1),
    Sketcher.Constraint("Coincident", 77, 3, -1, 1),
    Sketcher.Constraint("Coincident", 79, 3, -1, 1),
    Sketcher.Constraint("Coincident", 6, 3, 0, 3),
    Sketcher.Constraint("Coincident", 10, 3, 4, 3),
    Sketcher.Constraint("Coincident", 12, 3, 2, 3),
    Sketcher.Constraint("Coincident", 16, 3, 14, 3),
    Sketcher.Constraint("Coincident", 20, 3, 18, 3),
    Sketcher.Constraint("Coincident", 27, 3, 22, 3),
    Sketcher.Constraint("Coincident", 31, 3, 25, 3),
    Sketcher.Constraint("Coincident", 35, 3, 29, 3),
    Sketcher.Constraint("Coincident", 39, 3, 33, 3),
    Sketcher.Constraint("Coincident", 43, 3, 37, 3),
    Sketcher.Constraint("Coincident", 47, 3, 41, 3),
    Sketcher.Constraint("Coincident", 51, 3, 45, 3),
    Sketcher.Constraint("Coincident", 55, 3, 49, 3),
    Sketcher.Constraint("Coincident", 59, 3, 53, 3),
    Sketcher.Constraint("Coincident", 62, 3, 57, 3),
    Sketcher.Constraint("Coincident", 64, 3, 60, 3),
    Sketcher.Constraint("Coincident", 68, 3, 66, 3),
    Sketcher.Constraint("Coincident", 72, 3, 70, 3),
    Sketcher.Constraint("Coincident", 76, 3, 74, 3),
    Sketcher.Constraint("Coincident", 78, 3, 8, 3),
    Sketcher.Constraint("Equal", 0, 2),
    Sketcher.Constraint("Equal", 2, 4),
    Sketcher.Constraint("Equal", 1, 5),
    Sketcher.Constraint("Equal", 3, 7),
    Sketcher.Constraint("Equal", 6, 8),
    Sketcher.Constraint("Equal", 5, 9),
    Sketcher.Constraint("Equal", 7, 11),
    Sketcher.Constraint("Equal", 10, 12),
    Sketcher.Constraint("Equal", 12, 14),
    Sketcher.Constraint("Equal", 11, 15),
    Sketcher.Constraint("Equal", 14, 16),
    Sketcher.Constraint("Equal", 16, 18),
    Sketcher.Constraint("Equal", 15, 19),
    Sketcher.Constraint("Equal", 18, 20),
    Sketcher.Constraint("Equal", 20, 22),
    Sketcher.Constraint("Equal", 19, 23),
    Sketcher.Constraint("Equal", 21, 24),
    Sketcher.Constraint("Equal", 22, 25),
    Sketcher.Constraint("Equal", 23, 26),
    Sketcher.Constraint("Equal", 24, 28),
    Sketcher.Constraint("Equal", 27, 29),
    Sketcher.Constraint("Equal", 26, 30),
    Sketcher.Constraint("Equal", 28, 32),
    Sketcher.Constraint("Equal", 31, 33),
    Sketcher.Constraint("Equal", 30, 34),
    Sketcher.Constraint("Equal", 32, 36),
    Sketcher.Constraint("Equal", 35, 37),
    Sketcher.Constraint("Equal", 34, 38),
    Sketcher.Constraint("Equal", 36, 40),
    Sketcher.Constraint("Equal", 39, 41),
    Sketcher.Constraint("Equal", 38, 42),
    Sketcher.Constraint("Equal", 40, 44),
    Sketcher.Constraint("Equal", 43, 45),
    Sketcher.Constraint("Equal", 42, 46),
    Sketcher.Constraint("Equal", 44, 48),
    Sketcher.Constraint("Equal", 47, 49),
    Sketcher.Constraint("Equal", 46, 50),
    Sketcher.Constraint("Equal", 48, 52),
    Sketcher.Constraint("Equal", 51, 53),
    Sketcher.Constraint("Equal", 50, 54),
    Sketcher.Constraint("Equal", 52, 56),
    Sketcher.Constraint("Equal", 55, 57),
    Sketcher.Constraint("Equal", 54, 58),
    Sketcher.Constraint("Equal", 59, 60),
    Sketcher.Constraint("Equal", 58, 61),
    Sketcher.Constraint("Equal", 60, 62),
    Sketcher.Constraint("Equal", 62, 64),
    Sketcher.Constraint("Equal", 64, 66),
    Sketcher.Constraint("Equal", 61, 67),
    Sketcher.Constraint("Equal", 66, 68),
    Sketcher.Constraint("Equal", 68, 70),
    Sketcher.Constraint("Equal", 67, 71),
    Sketcher.Constraint("Equal", 70, 72),
    Sketcher.Constraint("Equal", 72, 74),
    Sketcher.Constraint("Equal", 71, 75),
    Sketcher.Constraint("Equal", 74, 76),
    Sketcher.Constraint("Equal", 75, 79),
    Sketcher.Constraint("PointOnObject", 4, 3, -1),
    Sketcher.Constraint("PointOnObject", 22, 3, -2),
    Sketcher.Constraint("PointOnObject", 41, 3, -1),
    Sketcher.Constraint("PointOnObject", 60, 3, -2),
    Sketcher.Constraint("Horizontal", 20, 3, 25, 3),
    Sketcher.Constraint("Horizontal", 16, 3, 29, 3),
    Sketcher.Constraint("Horizontal", 12, 3, 33, 3),
    Sketcher.Constraint("Horizontal", 6, 3, 37, 3),
    Sketcher.Constraint("Horizontal", 8, 3, 45, 3),
    Sketcher.Constraint("Horizontal", 62, 3, 66, 3),
    Sketcher.Constraint("Horizontal", 59, 3, 70, 3),
    Sketcher.Constraint("Horizontal", 55, 3, 74, 3),
    Sketcher.Constraint("Vertical", 6, 3, 8, 3),
    Sketcher.Constraint("Vertical", 39, 3, 49, 3),
    Sketcher.Constraint("Vertical", 35, 3, 53, 3),
    Sketcher.Constraint("Vertical", 31, 3, 57, 3),
    Sketcher.Constraint("Radius", 1, Q("7 mm")),
    Sketcher.Constraint("Radius", 0, Q("1.05 mm")),
    Sketcher.Constraint("Radius", 3, Q("8.05 mm")),
    Sketcher.Constraint("DistanceX", -1, 1, 3, 2, Q("7.267101 mm")),
    Sketcher.Constraint("DistanceY", 18, 1, -1, 1, Q("7.267101 mm")),
    Sketcher.Constraint("DistanceY", 2, 3, -1, 1, Q("4.731671 mm")),
    Sketcher.Constraint("DistanceX", -1, 1, 14, 3, Q("4.731671 mm")),
])
pad1 = body.newObject("PartDesign::Pad", "Pad")
pad1.Profile = sketch2
pad1.Length = 8.5

doc.recompute()
